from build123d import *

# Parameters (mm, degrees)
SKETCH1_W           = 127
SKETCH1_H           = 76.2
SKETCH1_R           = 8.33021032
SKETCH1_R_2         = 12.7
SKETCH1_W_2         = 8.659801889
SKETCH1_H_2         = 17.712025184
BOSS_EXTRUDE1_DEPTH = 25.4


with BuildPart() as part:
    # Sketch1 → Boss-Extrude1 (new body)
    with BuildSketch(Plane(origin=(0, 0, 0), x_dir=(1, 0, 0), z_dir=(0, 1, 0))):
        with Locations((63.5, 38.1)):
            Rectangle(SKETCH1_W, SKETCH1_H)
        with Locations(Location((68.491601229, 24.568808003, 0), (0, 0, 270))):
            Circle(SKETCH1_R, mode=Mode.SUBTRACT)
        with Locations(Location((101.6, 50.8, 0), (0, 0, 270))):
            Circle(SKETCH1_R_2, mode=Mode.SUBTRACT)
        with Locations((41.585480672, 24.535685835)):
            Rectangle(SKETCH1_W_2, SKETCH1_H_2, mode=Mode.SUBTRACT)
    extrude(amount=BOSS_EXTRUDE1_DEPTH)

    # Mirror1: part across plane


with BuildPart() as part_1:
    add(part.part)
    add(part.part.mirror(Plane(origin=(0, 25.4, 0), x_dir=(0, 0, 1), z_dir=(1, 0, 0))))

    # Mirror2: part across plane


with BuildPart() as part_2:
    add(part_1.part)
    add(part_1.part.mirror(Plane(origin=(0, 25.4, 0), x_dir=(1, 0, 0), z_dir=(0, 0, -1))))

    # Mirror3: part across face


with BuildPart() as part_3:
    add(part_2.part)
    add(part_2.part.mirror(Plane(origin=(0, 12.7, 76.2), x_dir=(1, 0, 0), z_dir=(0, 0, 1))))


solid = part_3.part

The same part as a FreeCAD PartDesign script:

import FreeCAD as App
import Part
import Sketcher
from FreeCAD import Vector
Q = App.Units.Quantity


def add_polygon(sketch, points):
    """Adds a closed chain of lines whose ends are joined by coincident constraints."""
    first, n = sketch.GeometryCount, len(points)
    for a, b in zip(points, points[1:] + points[:1]):
        sketch.addGeometry(Part.LineSegment(App.Vector(*a, 0), App.Vector(*b, 0)), False)
    for i in range(n):
        sketch.addConstraint(Sketcher.Constraint("Coincident", first + i, 2, first + (i + 1) % n, 1))

doc = App.newDocument("Part")
body = doc.addObject("PartDesign::Body", "Body")

# Sketch on XZ plane
sketch1 = doc.addObject("Sketcher::SketchObject", "Sketch")
body.addObject(sketch1)
sketch1.AttachmentSupport = (doc.XZ_Plane, [""])
sketch1.MapMode = "FlatFace"
add_polygon(sketch1, [(0, -76.2), (0, 0), (127, 0), (127, -76.2)])  # lines 0-3
add_polygon(sketch1, [(45.915382, -15.679673), (37.25558, -15.679673), (37.25558, -33.391698), (45.915382, -33.391698)])  # lines 4-7
sketch1.addGeometry(Part.Circle(Vector(68.491601, -24.568808, 0), Vector(0, 0, 1), 8.33021), False)  # 8
sketch1.addGeometry(Part.Circle(Vector(101.6, -50.8, 0), Vector(0, 0, 1), 12.7), False)  # 9
sketch1.addConstraint(Sketcher.Constraint("Vertical", 0))
sketch1.addConstraint(Sketcher.Constraint("Horizontal", 1))
sketch1.addConstraint(Sketcher.Constraint("Vertical", 2))
sketch1.addConstraint(Sketcher.Constraint("Horizontal", 3))
sketch1.addConstraint(Sketcher.Constraint("Horizontal", 4))
sketch1.addConstraint(Sketcher.Constraint("Vertical", 5))
sketch1.addConstraint(Sketcher.Constraint("Horizontal", 6))
sketch1.addConstraint(Sketcher.Constraint("Vertical", 7))
sketch1.addConstraint(Sketcher.Constraint("Coincident", 0, 2, -1, 1))
sketch1.addConstraint(Sketcher.Constraint("Diameter", 9, Q("1 in")))
sketch1.addConstraint(Sketcher.Constraint("DistanceX", 1, 1, 1, 2, Q("5 in")))
sketch1.addConstraint(Sketcher.Constraint("DistanceY", 0, 1, 0, 2, Q("3 in")))
sketch1.addConstraint(Sketcher.Constraint("DistanceX", -1, 1, 9, 3, Q("4 in")))
sketch1.addConstraint(Sketcher.Constraint("DistanceY", 9, 3, -1, 1, Q("2 in")))
sketch1.addConstraint(Sketcher.Constraint("Diameter", 8, Q("16.660421 mm")))
sketch1.addConstraint(Sketcher.Constraint("DistanceX", 4, 2, 4, 1, Q("8.659802 mm")))
sketch1.addConstraint(Sketcher.Constraint("DistanceX", -1, 1, 8, 3, Q("68.491601 mm")))
sketch1.addConstraint(Sketcher.Constraint("DistanceY", 5, 2, -1, 1, Q("33.391698 mm")))
sketch1.addConstraint(Sketcher.Constraint("DistanceY", 5, 2, 5, 1, Q("17.712025 mm")))
sketch1.addConstraint(Sketcher.Constraint("DistanceY", 8, 3, -1, 1, Q("24.568808 mm")))
sketch1.addConstraint(Sketcher.Constraint("DistanceX", -1, 1, 4, 2, Q("37.25558 mm")))
pad1 = doc.addObject("PartDesign::Pad", "Pad")
body.addObject(pad1)
pad1.Profile = sketch1
pad1.Length = Q("1 in")
pad1.Reversed = True
body2 = doc.addObject("PartDesign::Body", "Body001")
doc.recompute()

body2.BaseFeature = body
doc.recompute()

mirroring = doc.addObject("Part::Mirroring", "Mirroring")
mirroring.Source = body
mirroring.Base = Vector(0, 25.4, 0)
mirroring.Normal = Vector(1, 0, 0)
body3 = doc.addObject("PartDesign::Body", "Body002")
body3.BaseFeature = mirroring
boolean = doc.addObject("PartDesign::Boolean", "Boolean")
body2.addObject(boolean)
boolean.Type = "Fuse"
boolean.addObjects([body3])
doc.recompute()
body4 = doc.addObject("PartDesign::Body", "Body003")
doc.recompute()

body4.BaseFeature = body2
doc.recompute()

mirroring2 = doc.addObject("Part::Mirroring", "Mirroring001")
mirroring2.Source = body2
mirroring2.Base = Vector(0, 25.4, 0)
mirroring2.Normal = Vector(0, 0, -1)
body5 = doc.addObject("PartDesign::Body", "Body004")
body5.BaseFeature = mirroring2
boolean2 = doc.addObject("PartDesign::Boolean", "Boolean001")
body4.addObject(boolean2)
boolean2.Type = "Fuse"
boolean2.addObjects([body5])
doc.recompute()
body6 = doc.addObject("PartDesign::Body", "Body005")
doc.recompute()

body6.BaseFeature = body4
doc.recompute()

mirroring3 = doc.addObject("Part::Mirroring", "Mirroring002")
mirroring3.Source = body4
mirroring3.Base = Vector(0, 12.7, 76.2)
mirroring3.Normal = Vector(0, 0, 1)
body7 = doc.addObject("PartDesign::Body", "Body006")
body7.BaseFeature = mirroring3
boolean3 = doc.addObject("PartDesign::Boolean", "Boolean002")
body6.addObject(boolean3)
boolean3.Type = "Fuse"
boolean3.addObjects([body7])
doc.recompute()
mirroring.Visibility = False
mirroring2.Visibility = False
mirroring3.Visibility = False

doc.recompute()
